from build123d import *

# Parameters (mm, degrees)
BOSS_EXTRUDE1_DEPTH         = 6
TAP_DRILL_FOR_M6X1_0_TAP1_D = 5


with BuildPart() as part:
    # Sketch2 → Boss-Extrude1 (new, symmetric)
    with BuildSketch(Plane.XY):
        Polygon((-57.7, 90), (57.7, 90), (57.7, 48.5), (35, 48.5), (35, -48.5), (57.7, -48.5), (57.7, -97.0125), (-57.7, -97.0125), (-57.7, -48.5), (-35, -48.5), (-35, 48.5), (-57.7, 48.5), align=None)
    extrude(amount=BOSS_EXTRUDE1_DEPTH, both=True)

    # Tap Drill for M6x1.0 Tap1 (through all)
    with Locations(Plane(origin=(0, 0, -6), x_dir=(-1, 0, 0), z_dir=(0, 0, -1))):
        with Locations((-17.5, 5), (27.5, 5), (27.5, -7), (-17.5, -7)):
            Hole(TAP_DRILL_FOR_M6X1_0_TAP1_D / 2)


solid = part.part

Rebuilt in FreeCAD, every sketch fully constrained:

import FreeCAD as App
import Part
import Sketcher
Q = App.Units.Quantity


def add_polygon(sketch, points):
    """Adds a closed chain of lines whose ends are joined by coincident constraints."""
    first, n = sketch.GeometryCount, len(points)
    for a, b in zip(points, points[1:] + points[:1]):
        sketch.addGeometry(Part.LineSegment(App.Vector(*a, 0), App.Vector(*b, 0)), False)
    for i in range(n):
        sketch.addConstraint(Sketcher.Constraint("Coincident", first + i, 2, first + (i + 1) % n, 1))

doc = App.newDocument("Part")
body = doc.addObject("PartDesign::Body", "Body")

# Sketch on XY plane
sketch1 = body.newObject("Sketcher::SketchObject", "Sketch")
sketch1.AttachmentSupport = (doc.getObject("XY_Plane"), [""])
sketch1.MapMode = "FlatFace"
add_polygon(sketch1, [(58, 90), (-58, 90), (-58, 48), (-35, 48), (-35, -48), (-58, -48), (-58, -97), (58, -97), (58, -48), (35, -48), (35, 48), (58, 48)])  # lines 0-11
sketch1.addConstraint(Sketcher.Constraint("Horizontal", 0))
sketch1.addConstraint(Sketcher.Constraint("Vertical", 1))
sketch1.addConstraint(Sketcher.Constraint("Horizontal", 2))
sketch1.addConstraint(Sketcher.Constraint("Vertical", 3))
sketch1.addConstraint(Sketcher.Constraint("Horizontal", 4))
sketch1.addConstraint(Sketcher.Constraint("Vertical", 5))
sketch1.addConstraint(Sketcher.Constraint("Horizontal", 6))
sketch1.addConstraint(Sketcher.Constraint("Vertical", 7))
sketch1.addConstraint(Sketcher.Constraint("Horizontal", 8))
sketch1.addConstraint(Sketcher.Constraint("Vertical", 9))
sketch1.addConstraint(Sketcher.Constraint("Horizontal", 10))
sketch1.addConstraint(Sketcher.Constraint("Vertical", 11))
sketch1.addConstraint(Sketcher.Constraint("Symmetric", 1, 2, 7, 2, -1, 1))
sketch1.addConstraint(Sketcher.Constraint("Symmetric", 3, 2, 9, 2, -1, 1))
sketch1.addConstraint(Sketcher.Constraint("Symmetric", 4, 2, 7, 2, -2))
sketch1.addConstraint(Sketcher.Constraint("Vertical", 7, 2, 10, 2))
sketch1.addConstraint(Sketcher.Constraint("DistanceY", 3, 2, 3, 1, Q("97 mm")))
sketch1.addConstraint(Sketcher.Constraint("DistanceX", 0, 2, 0, 1, Q("115.4 mm")))
sketch1.addConstraint(Sketcher.Constraint("DistanceX", 2, 1, 2, 2, Q("22.7 mm")))
sketch1.addConstraint(Sketcher.Constraint("DistanceY", 1, 2, 1, 1, Q("41.5 mm")))
sketch1.addConstraint(Sketcher.Constraint("DistanceY", 5, 2, 5, 1, Q("48.5125 mm")))
pad1 = body.newObject("PartDesign::Pad", "Pad")
pad1.Profile = sketch1
pad1.Length = 12
pad1.Midplane = True

# Sketch on XY plane
sketch2 = body.newObject("Sketcher::SketchObject", "Sketch001")
sketch2.AttachmentSupport = (doc.getObject("XY_Plane"), [""])
sketch2.MapMode = "FlatFace"
sketch2.AttachmentOffset = App.Placement(App.Vector(0, 0, -6), App.Rotation())
sketch2.addGeometry(Part.Circle(App.Vector(17.5, 5, 0), App.Vector(0, 0, 1), 2.5), False)
sketch2.addGeometry(Part.Circle(App.Vector(-27.5, 5, 0), App.Vector(0, 0, 1), 2.5), False)
sketch2.addGeometry(Part.Circle(App.Vector(-27.5, -7, 0), App.Vector(0, 0, 1), 2.5), False)
sketch2.addGeometry(Part.Circle(App.Vector(17.5, -7, 0), App.Vector(0, 0, 1), 2.5), False)
sketch2.addConstraint(Sketcher.Constraint("Equal", 0, 1))
sketch2.addConstraint(Sketcher.Constraint("Equal", 1, 2))
sketch2.addConstraint(Sketcher.Constraint("Equal", 2, 3))
sketch2.addConstraint(Sketcher.Constraint("Horizontal", 0, 3, 1, 3))
sketch2.addConstraint(Sketcher.Constraint("Horizontal", 2, 3, 3, 3))
sketch2.addConstraint(Sketcher.Constraint("Vertical", 1, 3, 2, 3))
sketch2.addConstraint(Sketcher.Constraint("Vertical", 0, 3, 3, 3))
sketch2.addConstraint(Sketcher.Constraint("Diameter", 0, Q("5 mm")))
sketch2.addConstraint(Sketcher.Constraint("DistanceY", -1, 1, 0, 3, Q("5 mm")))
sketch2.addConstraint(Sketcher.Constraint("DistanceY", 2, 3, -1, 1, Q("7 mm")))
sketch2.addConstraint(Sketcher.Constraint("DistanceX", 1, 3, 0, 3, Q("45 mm")))
sketch2.addConstraint(Sketcher.Constraint("DistanceX", -1, 1, 0, 3, Q("17.5 mm")))
doc.recompute()
hole = body.newObject("PartDesign::Hole", "Hole")
hole.Profile = sketch2
hole.ThreadType = "None"
hole.Diameter = 5
hole.DepthType = "ThroughAll"
hole.Reversed = True

doc.recompute()
